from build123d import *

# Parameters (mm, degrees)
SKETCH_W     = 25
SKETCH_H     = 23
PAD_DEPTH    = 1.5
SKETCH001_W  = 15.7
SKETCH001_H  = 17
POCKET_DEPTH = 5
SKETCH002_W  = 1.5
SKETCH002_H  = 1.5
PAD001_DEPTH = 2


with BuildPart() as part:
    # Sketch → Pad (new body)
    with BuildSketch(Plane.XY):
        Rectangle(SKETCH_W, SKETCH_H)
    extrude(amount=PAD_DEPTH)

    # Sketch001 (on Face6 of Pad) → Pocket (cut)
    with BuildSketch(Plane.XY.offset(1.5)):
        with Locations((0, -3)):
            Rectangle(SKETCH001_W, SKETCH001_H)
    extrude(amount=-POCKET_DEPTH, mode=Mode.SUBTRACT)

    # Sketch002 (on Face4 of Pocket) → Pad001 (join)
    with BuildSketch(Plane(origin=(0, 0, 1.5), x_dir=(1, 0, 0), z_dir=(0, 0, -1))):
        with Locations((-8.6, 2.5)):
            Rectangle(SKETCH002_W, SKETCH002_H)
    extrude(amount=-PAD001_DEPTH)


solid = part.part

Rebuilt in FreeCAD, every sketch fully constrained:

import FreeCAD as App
import Part
import Sketcher

doc = App.newDocument("Part")
body = doc.addObject("PartDesign::Body", "Body")

sketch1 = body.newObject("Sketcher::SketchObject", "Sketch")
sketch1.AttachmentSupport = (doc.getObject("XY_Plane"), [""])
sketch1.MapMode = "FlatFace"
sketch1.addGeometry([
    Part.LineSegment(App.Vector(-12, 12, 0), App.Vector(-12, -12, 0)),
    Part.LineSegment(App.Vector(-12, -12, 0), App.Vector(12, -12, 0)),
    Part.LineSegment(App.Vector(12, -12, 0), App.Vector(12, 12, 0)),
    Part.LineSegment(App.Vector(12, 12, 0), App.Vector(-12, 12, 0)),
], False)
sketch1.addConstraint([
    Sketcher.Constraint("Coincident", 0, 2, 1, 1),
    Sketcher.Constraint("Coincident", 1, 2, 2, 1),
    Sketcher.Constraint("Coincident", 2, 2, 3, 1),
    Sketcher.Constraint("Coincident", 3, 2, 0, 1),
    Sketcher.Constraint("Vertical", 0),
    Sketcher.Constraint("Horizontal", 1),
    Sketcher.Constraint("Vertical", 2),
    Sketcher.Constraint("Horizontal", 3),
    Sketcher.Constraint("Symmetric", 0, 2, 2, 2, -1, 1),
    Sketcher.Constraint("DistanceX", 1, 1, 1, 2, 25.0),
    Sketcher.Constraint("DistanceY", 0, 2, 0, 1, 23.0),
])
pad1 = body.newObject("PartDesign::Pad", "Pad")
pad1.Profile = sketch1
pad1.Length = 1.5

sketch2 = body.newObject("Sketcher::SketchObject", "Sketch001")
sketch2.AttachmentSupport = (doc.getObject("XY_Plane"), [""])
sketch2.MapMode = "FlatFace"
sketch2.AttachmentOffset = App.Placement(App.Vector(0, 0, 1.5), App.Rotation())
sketch2.addGeometry([
    Part.LineSegment(App.Vector(-8, 6, 0), App.Vector(-8, -12, 0)),
    Part.LineSegment(App.Vector(-8, -12, 0), App.Vector(8, -12, 0)),
    Part.LineSegment(App.Vector(8, -12, 0), App.Vector(8, 6, 0)),
    Part.LineSegment(App.Vector(8, 6, 0), App.Vector(-8, 6, 0)),
], False)
sketch2.addConstraint([
    Sketcher.Constraint("Coincident", 0, 2, 1, 1),
    Sketcher.Constraint("Coincident", 1, 2, 2, 1),
    Sketcher.Constraint("Coincident", 2, 2, 3, 1),
    Sketcher.Constraint("Coincident", 3, 2, 0, 1),
    Sketcher.Constraint("Vertical", 0),
    Sketcher.Constraint("Horizontal", 1),
    Sketcher.Constraint("Vertical", 2),
    Sketcher.Constraint("Horizontal", 3),
    Sketcher.Constraint("DistanceY", 0, 2, 0, 1, 17.0),
    Sketcher.Constraint("DistanceX", 1, 1, 1, 2, 15.7),
    Sketcher.Constraint("DistanceY", 0, 2, -1, 1, 11.5),
    Sketcher.Constraint("DistanceX", 0, 2, -1, 1, 7.85),
])
pocket1 = body.newObject("PartDesign::Pocket", "Pocket")
pocket1.Profile = sketch2
pocket1.Length = 5

sketch3 = body.newObject("Sketcher::SketchObject", "Sketch002")
sketch3.AttachmentSupport = (doc.getObject("XY_Plane"), [""])
sketch3.MapMode = "FlatFace"
sketch3.AttachmentOffset = App.Placement(App.Vector(0, 0, 1.5), App.Rotation())
sketch3.addGeometry([
    Part.LineSegment(App.Vector(-9.3, -3.2, 0), App.Vector(-9.3, -1.8, 0)),
    Part.LineSegment(App.Vector(-9.3, -1.8, 0), App.Vector(-7.8, -1.8, 0)),
    Part.LineSegment(App.Vector(-7.8, -1.8, 0), App.Vector(-7.8, -3.2, 0)),
    Part.LineSegment(App.Vector(-7.8, -3.2, 0), App.Vector(-9.3, -3.2, 0)),
], False)
sketch3.addConstraint([
    Sketcher.Constraint("Coincident", 0, 2, 1, 1),
    Sketcher.Constraint("Coincident", 1, 2, 2, 1),
    Sketcher.Constraint("Coincident", 2, 2, 3, 1),
    Sketcher.Constraint("Coincident", 3, 2, 0, 1),
    Sketcher.Constraint("Vertical", 0),
    Sketcher.Constraint("Horizontal", 1),
    Sketcher.Constraint("Vertical", 2),
    Sketcher.Constraint("Horizontal", 3),
    Sketcher.Constraint("Equal", 3, 0),
    Sketcher.Constraint("DistanceX", 1, 1, 1, 2, 1.5),
    Sketcher.Constraint("DistanceX", 0, 2, -1, 1, 9.35),
    Sketcher.Constraint("DistanceY", 0, 2, -1, 1, 1.75),
])
pad2 = body.newObject("PartDesign::Pad", "Pad001")
pad2.Profile = sketch3
pad2.Length = 2

doc.recompute()
